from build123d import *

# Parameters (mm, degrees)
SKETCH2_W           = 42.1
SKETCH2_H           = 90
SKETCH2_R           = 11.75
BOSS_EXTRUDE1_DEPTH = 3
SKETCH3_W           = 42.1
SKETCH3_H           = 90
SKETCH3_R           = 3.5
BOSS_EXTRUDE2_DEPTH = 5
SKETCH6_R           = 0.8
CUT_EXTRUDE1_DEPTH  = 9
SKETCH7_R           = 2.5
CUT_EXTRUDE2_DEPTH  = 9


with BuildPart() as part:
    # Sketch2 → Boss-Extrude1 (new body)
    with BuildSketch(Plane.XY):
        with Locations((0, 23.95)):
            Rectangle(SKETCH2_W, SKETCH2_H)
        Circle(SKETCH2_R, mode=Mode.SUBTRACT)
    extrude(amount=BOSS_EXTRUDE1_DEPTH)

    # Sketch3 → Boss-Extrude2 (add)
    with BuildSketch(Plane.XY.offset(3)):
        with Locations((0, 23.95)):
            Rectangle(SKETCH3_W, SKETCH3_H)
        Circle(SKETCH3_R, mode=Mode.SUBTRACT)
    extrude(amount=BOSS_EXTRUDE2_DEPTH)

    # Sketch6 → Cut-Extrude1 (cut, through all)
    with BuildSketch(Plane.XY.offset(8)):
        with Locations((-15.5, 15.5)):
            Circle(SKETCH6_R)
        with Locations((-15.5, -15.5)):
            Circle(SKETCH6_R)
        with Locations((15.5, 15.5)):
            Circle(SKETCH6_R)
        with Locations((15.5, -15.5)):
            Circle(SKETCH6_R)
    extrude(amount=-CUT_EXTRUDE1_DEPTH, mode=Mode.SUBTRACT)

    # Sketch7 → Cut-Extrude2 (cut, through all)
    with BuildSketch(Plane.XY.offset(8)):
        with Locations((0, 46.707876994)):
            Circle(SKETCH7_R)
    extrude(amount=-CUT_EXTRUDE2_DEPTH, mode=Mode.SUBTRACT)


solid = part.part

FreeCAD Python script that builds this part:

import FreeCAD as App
import Part
import Sketcher
from FreeCAD import Vector

doc = App.newDocument("Part")
body = doc.addObject("PartDesign::Body", "Body")

# Sketch on XY plane
sketch1 = doc.addObject("Sketcher::SketchObject", "Sketch")
body.addObject(sketch1)
sketch1.AttachmentSupport = (doc.XY_Plane, [""])
sketch1.MapMode = "FlatFace"
sketch1.addGeometry([
    Part.LineSegment(Vector(-21.05, 68.95, 0), Vector(-21.05, -21.05, 0)),  # 0
    Part.LineSegment(Vector(-21.05, -21.05, 0), Vector(21.05, -21.05, 0)),  # 1
    Part.LineSegment(Vector(21.05, -21.05, 0), Vector(21.05, 68.95, 0)),  # 2
    Part.LineSegment(Vector(21.05, 68.95, 0), Vector(-21.05, 68.95, 0)),  # 3
    Part.Circle(Vector(0, 0, 0), Vector(0, 0, 1), 11.75),  # 4
], False)
sketch1.addConstraint([
    Sketcher.Constraint("Coincident", 0, 2, 1, 1),
    Sketcher.Constraint("Coincident", 1, 2, 2, 1),
    Sketcher.Constraint("Coincident", 2, 2, 3, 1),
    Sketcher.Constraint("Coincident", 3, 2, 0, 1),
    Sketcher.Constraint("Vertical", 0),
    Sketcher.Constraint("Horizontal", 1),
    Sketcher.Constraint("Vertical", 2),
    Sketcher.Constraint("Horizontal", 3),
    Sketcher.Constraint("Coincident", 4, 3, -1, 1),
    Sketcher.Constraint("Diameter", 4, 23.5),
    Sketcher.Constraint("DistanceY", 0, 2, 0, 1, 90.0),
    Sketcher.Constraint("DistanceX", 1, 1, 1, 2, 42.1),
    Sketcher.Constraint("DistanceX", 0, 2, -1, 1, 21.05),
    Sketcher.Constraint("DistanceY", 0, 2, -1, 1, 21.05),
])
pad1 = doc.addObject("PartDesign::Pad", "Pad")
body.addObject(pad1)
pad1.Profile = sketch1
pad1.Length = 3

# Sketch on XY plane
sketch2 = doc.addObject("Sketcher::SketchObject", "Sketch001")
body.addObject(sketch2)
sketch2.AttachmentSupport = (doc.XY_Plane, [""])
sketch2.MapMode = "FlatFace"
sketch2.AttachmentOffset = App.Placement(Vector(0, 0, 3), App.Rotation())
sketch2.addGeometry([
    Part.LineSegment(Vector(-21.05, 68.95, 0), Vector(-21.05, -21.05, 0)),  # 0
    Part.LineSegment(Vector(-21.05, -21.05, 0), Vector(21.05, -21.05, 0)),  # 1
    Part.LineSegment(Vector(21.05, -21.05, 0), Vector(21.05, 68.95, 0)),  # 2
    Part.LineSegment(Vector(21.05, 68.95, 0), Vector(-21.05, 68.95, 0)),  # 3
    Part.Circle(Vector(0, 0, 0), Vector(0, 0, 1), 3.5),  # 4
], False)
sketch2.addConstraint([
    Sketcher.Constraint("Coincident", 0, 2, 1, 1),
    Sketcher.Constraint("Coincident", 1, 2, 2, 1),
    Sketcher.Constraint("Coincident", 2, 2, 3, 1),
    Sketcher.Constraint("Coincident", 3, 2, 0, 1),
    Sketcher.Constraint("Vertical", 0),
    Sketcher.Constraint("Horizontal", 1),
    Sketcher.Constraint("Vertical", 2),
    Sketcher.Constraint("Horizontal", 3),
    Sketcher.Constraint("Coincident", 4, 3, -1, 1),
    Sketcher.Constraint("Diameter", 4, 7.0),
    Sketcher.Constraint("DistanceY", 0, 2, 0, 1, 90.0),
    Sketcher.Constraint("DistanceX", 1, 1, 1, 2, 42.1),
    Sketcher.Constraint("DistanceX", 0, 2, -1, 1, 21.05),
    Sketcher.Constraint("DistanceY", 0, 2, -1, 1, 21.05),
])
pad2 = doc.addObject("PartDesign::Pad", "Pad001")
body.addObject(pad2)
pad2.Profile = sketch2
pad2.Length = 5

# Sketch on XY plane
sketch3 = doc.addObject("Sketcher::SketchObject", "Sketch002")
body.addObject(sketch3)
sketch3.AttachmentSupport = (doc.XY_Plane, [""])
sketch3.MapMode = "FlatFace"
sketch3.AttachmentOffset = App.Placement(Vector(0, 0, 8), App.Rotation())
sketch3.addGeometry([
    Part.Circle(Vector(-15.5, 15.5, 0), Vector(0, 0, 1), 0.8),
    Part.Circle(Vector(-15.5, -15.5, 0), Vector(0, 0, 1), 0.8),
    Part.Circle(Vector(15.5, 15.5, 0), Vector(0, 0, 1), 0.8),
    Part.Circle(Vector(15.5, -15.5, 0), Vector(0, 0, 1), 0.8),
], False)
sketch3.addConstraint([
    Sketcher.Constraint("Equal", 0, 1),
    Sketcher.Constraint("Equal", 1, 2),
    Sketcher.Constraint("Equal", 2, 3),
    Sketcher.Constraint("Symmetric", 1, 3, 2, 3, -1, 1),
    Sketcher.Constraint("Symmetric", 0, 3, 3, 3, -1, 1),
    Sketcher.Constraint("Symmetric", 0, 3, 2, 3, -2),
    Sketcher.Constraint("Diameter", 0, 1.6),
    Sketcher.Constraint("DistanceY", 1, 3, 0, 3, 31.0),
    Sketcher.Constraint("DistanceX", 0, 3, 2, 3, 31.0),
])
pocket1 = doc.addObject("PartDesign::Pocket", "Pocket")
body.addObject(pocket1)
pocket1.Profile = sketch3
pocket1.Type = "ThroughAll"

# Sketch on XY plane
sketch4 = doc.addObject("Sketcher::SketchObject", "Sketch003")
body.addObject(sketch4)
sketch4.AttachmentSupport = (doc.XY_Plane, [""])
sketch4.MapMode = "FlatFace"
sketch4.AttachmentOffset = App.Placement(Vector(0, 0, 8), App.Rotation())
sketch4.addGeometry(Part.Circle(Vector(0, 46.707877, 0), Vector(0, 0, 1), 2.5), False)
sketch4.addConstraint([
    Sketcher.Constraint("PointOnObject", 0, 3, -2),
    Sketcher.Constraint("Diameter", 0, 5.0),
    Sketcher.Constraint("DistanceY", -1, 1, 0, 3, 46.707877),
])
pocket2 = doc.addObject("PartDesign::Pocket", "Pocket001")
body.addObject(pocket2)
pocket2.Profile = sketch4
pocket2.Type = "ThroughAll"

doc.recompute()
